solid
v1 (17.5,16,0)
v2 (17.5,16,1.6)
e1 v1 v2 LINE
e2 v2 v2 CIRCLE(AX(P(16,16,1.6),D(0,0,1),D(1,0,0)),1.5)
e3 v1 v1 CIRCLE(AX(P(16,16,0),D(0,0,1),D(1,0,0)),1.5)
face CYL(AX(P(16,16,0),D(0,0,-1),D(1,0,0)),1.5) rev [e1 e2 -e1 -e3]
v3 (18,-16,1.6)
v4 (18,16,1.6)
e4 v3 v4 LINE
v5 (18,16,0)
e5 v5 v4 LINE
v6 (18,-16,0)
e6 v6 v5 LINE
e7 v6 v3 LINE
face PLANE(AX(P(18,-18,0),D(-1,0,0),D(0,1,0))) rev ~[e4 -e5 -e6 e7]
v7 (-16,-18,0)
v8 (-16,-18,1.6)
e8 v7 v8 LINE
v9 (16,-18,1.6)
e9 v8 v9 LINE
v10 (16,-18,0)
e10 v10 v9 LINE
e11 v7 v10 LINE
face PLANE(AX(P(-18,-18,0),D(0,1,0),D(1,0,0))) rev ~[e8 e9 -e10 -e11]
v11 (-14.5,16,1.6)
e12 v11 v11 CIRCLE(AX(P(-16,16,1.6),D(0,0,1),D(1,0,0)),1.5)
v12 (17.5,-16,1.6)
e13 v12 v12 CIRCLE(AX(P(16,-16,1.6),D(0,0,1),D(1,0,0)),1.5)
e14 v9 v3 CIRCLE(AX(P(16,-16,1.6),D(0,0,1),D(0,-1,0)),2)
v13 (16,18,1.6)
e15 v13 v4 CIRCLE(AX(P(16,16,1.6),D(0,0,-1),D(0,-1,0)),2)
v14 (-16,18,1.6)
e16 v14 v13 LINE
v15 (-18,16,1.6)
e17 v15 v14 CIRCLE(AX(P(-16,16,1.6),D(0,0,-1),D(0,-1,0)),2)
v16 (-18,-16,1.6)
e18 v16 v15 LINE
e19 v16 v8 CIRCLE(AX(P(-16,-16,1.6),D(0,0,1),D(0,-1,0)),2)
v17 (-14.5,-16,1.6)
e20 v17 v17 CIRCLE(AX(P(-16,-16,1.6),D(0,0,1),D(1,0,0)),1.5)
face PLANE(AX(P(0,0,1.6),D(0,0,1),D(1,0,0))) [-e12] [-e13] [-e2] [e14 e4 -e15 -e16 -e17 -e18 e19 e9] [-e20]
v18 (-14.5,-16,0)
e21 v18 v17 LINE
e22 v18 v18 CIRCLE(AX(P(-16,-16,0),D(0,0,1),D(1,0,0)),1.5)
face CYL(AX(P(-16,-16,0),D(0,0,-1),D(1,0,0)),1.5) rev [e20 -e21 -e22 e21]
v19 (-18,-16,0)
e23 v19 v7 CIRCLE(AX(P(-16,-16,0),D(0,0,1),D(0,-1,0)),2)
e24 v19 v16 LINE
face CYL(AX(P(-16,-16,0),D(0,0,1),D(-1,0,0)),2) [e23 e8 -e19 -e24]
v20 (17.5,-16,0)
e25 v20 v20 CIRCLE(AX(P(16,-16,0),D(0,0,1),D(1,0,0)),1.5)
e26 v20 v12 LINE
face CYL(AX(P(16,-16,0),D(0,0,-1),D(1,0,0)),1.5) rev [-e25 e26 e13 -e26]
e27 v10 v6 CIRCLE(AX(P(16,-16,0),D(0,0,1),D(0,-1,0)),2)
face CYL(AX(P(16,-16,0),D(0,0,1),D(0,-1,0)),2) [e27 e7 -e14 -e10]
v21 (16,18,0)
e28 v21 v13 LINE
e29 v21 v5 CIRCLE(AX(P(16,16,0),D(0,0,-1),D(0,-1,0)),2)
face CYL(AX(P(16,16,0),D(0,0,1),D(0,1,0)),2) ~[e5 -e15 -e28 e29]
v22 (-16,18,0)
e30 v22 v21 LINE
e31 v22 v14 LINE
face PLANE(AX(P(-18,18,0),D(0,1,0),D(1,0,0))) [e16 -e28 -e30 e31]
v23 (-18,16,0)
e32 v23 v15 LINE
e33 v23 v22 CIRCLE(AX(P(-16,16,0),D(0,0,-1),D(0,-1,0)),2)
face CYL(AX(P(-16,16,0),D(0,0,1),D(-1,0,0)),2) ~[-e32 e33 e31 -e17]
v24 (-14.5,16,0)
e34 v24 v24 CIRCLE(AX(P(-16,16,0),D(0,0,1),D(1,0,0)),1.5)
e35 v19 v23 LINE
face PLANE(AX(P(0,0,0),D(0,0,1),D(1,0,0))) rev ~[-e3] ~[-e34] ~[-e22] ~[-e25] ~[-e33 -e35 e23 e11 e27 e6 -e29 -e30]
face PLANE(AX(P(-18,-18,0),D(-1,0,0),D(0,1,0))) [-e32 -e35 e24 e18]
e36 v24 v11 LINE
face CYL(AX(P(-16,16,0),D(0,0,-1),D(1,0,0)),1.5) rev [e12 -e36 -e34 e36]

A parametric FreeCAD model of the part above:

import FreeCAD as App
import Part
import Sketcher

V = App.Vector


def edges_at(feature, points):
    """Names of the edges that pass closest to the given points."""
    edges = feature.Shape.Edges
    near = lambda p: min(range(len(edges)), key=lambda i: edges[i].distToShape(Part.Vertex(*p))[0])
    return sorted({f"Edge{near(p) + 1}" for p in points})


def add_polygon(sketch, points):
    """Adds a closed chain of lines whose ends are joined by coincident constraints."""
    first, n = sketch.GeometryCount, len(points)
    for a, b in zip(points, points[1:] + points[:1]):
        sketch.addGeometry(Part.LineSegment(App.Vector(*a, 0), App.Vector(*b, 0)), False)
    for i in range(n):
        sketch.addConstraint(Sketcher.Constraint("Coincident", first + i, 2, first + (i + 1) % n, 1))

doc = App.newDocument("Part")
body = doc.addObject("PartDesign::Body", "Body")

sketch1 = body.newObject("Sketcher::SketchObject", "Sketch")
sketch1.AttachmentSupport = (doc.getObject("XY_Plane"), [""])
sketch1.MapMode = "FlatFace"
add_polygon(sketch1, [(-18, 18), (-18, -18), (18, -18), (18, 18)])
sketch1.addGeometry(Part.Circle(V(-16, -16, 0), V(0, 0, 1), 1.5), False)
sketch1.addGeometry(Part.Circle(V(16, -16, 0), V(0, 0, 1), 1.5), False)
sketch1.addGeometry(Part.Circle(V(-16, 16, 0), V(0, 0, 1), 1.5), False)
sketch1.addGeometry(Part.Circle(V(16, 16, 0), V(0, 0, 1), 1.5), False)
sketch1.addConstraint(Sketcher.Constraint("Vertical", 0))
sketch1.addConstraint(Sketcher.Constraint("Horizontal", 1))
sketch1.addConstraint(Sketcher.Constraint("Vertical", 2))
sketch1.addConstraint(Sketcher.Constraint("Horizontal", 3))
sketch1.addConstraint(Sketcher.Constraint("Equal", 4, 5))
sketch1.addConstraint(Sketcher.Constraint("Equal", 5, 6))
sketch1.addConstraint(Sketcher.Constraint("Equal", 6, 7))
sketch1.addConstraint(Sketcher.Constraint("Symmetric", 5, 3, 6, 3, -1, 1))
sketch1.addConstraint(Sketcher.Constraint("Symmetric", 4, 3, 7, 3, -1, 1))
sketch1.addConstraint(Sketcher.Constraint("Symmetric", 0, 2, 2, 2, -1, 1))
sketch1.addConstraint(Sketcher.Constraint("Symmetric", 4, 3, 5, 3, -2))
sketch1.addConstraint(Sketcher.Constraint("Equal", 3, 0))
sketch1.addConstraint(Sketcher.Constraint("Diameter", 4, 3.0))
sketch1.addConstraint(Sketcher.Constraint("DistanceX", 1, 1, 1, 2, 36.0))
sketch1.addConstraint(Sketcher.Constraint("DistanceX", 4, 3, -1, 1, 16.0))
sketch1.addConstraint(Sketcher.Constraint("DistanceY", 4, 3, -1, 1, 16.0))
pad1 = body.newObject("PartDesign::Pad", "Pad")
pad1.Profile = sketch1
pad1.Length = 1.6
doc.recompute()

fillet = body.newObject("PartDesign::Fillet", "Fillet")
fillet.Base = (pad1, edges_at(pad1, [
    (-18, 18, 0.8),
    (18, 18, 0.8),
    (18, -18, 0.8),
    (-18, -18, 0.8),
]))
fillet.Radius = 2

doc.recompute()
